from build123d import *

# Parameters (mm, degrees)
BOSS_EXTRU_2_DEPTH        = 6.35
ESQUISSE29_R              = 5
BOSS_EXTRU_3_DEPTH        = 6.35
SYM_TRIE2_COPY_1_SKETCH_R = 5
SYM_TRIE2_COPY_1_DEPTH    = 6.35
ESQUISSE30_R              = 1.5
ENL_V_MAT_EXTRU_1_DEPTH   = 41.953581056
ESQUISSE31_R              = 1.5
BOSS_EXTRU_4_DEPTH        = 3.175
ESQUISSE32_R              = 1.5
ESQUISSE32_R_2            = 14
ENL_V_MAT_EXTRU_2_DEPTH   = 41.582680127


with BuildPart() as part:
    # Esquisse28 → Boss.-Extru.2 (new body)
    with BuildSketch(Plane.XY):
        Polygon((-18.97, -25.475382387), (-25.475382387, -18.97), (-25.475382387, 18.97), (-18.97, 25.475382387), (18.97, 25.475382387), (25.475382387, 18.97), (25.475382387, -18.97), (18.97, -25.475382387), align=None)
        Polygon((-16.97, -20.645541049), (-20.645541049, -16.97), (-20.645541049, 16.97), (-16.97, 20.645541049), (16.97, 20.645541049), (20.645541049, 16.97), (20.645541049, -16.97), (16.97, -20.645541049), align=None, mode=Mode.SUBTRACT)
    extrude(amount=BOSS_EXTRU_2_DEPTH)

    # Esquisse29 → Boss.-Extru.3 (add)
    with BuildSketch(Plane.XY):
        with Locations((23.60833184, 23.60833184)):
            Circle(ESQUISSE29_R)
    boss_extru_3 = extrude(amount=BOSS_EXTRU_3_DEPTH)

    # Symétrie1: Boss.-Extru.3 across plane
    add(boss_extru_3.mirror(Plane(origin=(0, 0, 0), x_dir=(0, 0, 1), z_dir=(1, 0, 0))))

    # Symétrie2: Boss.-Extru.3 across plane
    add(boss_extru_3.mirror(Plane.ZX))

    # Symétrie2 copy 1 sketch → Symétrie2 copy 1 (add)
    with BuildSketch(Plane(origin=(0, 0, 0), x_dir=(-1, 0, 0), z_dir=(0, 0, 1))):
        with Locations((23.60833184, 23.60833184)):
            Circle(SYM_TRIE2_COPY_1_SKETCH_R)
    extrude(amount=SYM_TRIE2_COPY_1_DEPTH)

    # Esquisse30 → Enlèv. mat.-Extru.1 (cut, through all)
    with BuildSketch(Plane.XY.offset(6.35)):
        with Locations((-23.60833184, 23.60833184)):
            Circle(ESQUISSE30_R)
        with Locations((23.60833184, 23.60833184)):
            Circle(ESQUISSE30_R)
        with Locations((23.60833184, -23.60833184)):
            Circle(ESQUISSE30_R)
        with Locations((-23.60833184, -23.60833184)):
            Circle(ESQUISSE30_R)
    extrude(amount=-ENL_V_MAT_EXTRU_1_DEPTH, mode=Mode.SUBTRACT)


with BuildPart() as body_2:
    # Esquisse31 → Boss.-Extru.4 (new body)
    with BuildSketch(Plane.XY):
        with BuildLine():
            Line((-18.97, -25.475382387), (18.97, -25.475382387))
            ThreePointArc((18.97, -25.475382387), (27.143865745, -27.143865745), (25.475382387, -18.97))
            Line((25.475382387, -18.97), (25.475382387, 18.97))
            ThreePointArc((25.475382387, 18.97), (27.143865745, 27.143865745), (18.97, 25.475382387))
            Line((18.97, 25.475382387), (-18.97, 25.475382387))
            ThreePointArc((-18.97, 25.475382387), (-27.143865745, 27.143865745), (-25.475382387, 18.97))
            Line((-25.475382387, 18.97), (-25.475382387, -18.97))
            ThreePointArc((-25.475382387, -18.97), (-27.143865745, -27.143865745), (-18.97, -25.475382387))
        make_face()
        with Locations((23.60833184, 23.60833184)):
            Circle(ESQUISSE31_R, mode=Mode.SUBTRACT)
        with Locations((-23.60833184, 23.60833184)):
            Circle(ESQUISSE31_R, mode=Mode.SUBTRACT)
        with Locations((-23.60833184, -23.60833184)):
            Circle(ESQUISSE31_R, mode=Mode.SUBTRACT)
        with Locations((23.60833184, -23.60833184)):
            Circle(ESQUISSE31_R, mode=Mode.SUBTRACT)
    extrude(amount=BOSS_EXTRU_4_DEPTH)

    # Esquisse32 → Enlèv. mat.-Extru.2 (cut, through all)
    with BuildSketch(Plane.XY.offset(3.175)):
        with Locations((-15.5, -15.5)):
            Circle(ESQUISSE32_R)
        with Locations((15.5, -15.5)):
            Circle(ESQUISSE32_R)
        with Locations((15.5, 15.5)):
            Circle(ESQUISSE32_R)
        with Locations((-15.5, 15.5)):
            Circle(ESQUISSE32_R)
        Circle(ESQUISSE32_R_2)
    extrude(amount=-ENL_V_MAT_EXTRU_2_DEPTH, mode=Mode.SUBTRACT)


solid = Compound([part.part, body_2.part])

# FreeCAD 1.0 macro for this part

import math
import FreeCAD as App
import Part
import Sketcher


def add_polygon(sketch, points):
    """Adds a closed chain of lines whose ends are joined by coincident constraints."""
    first, n = sketch.GeometryCount, len(points)
    for a, b in zip(points, points[1:] + points[:1]):
        sketch.addGeometry(Part.LineSegment(App.Vector(*a, 0), App.Vector(*b, 0)), False)
    for i in range(n):
        sketch.addConstraint(Sketcher.Constraint("Coincident", first + i, 2, first + (i + 1) % n, 1))

doc = App.newDocument("Part")
body = doc.addObject("PartDesign::Body", "Body")

# Sketch on XY plane
sketch1 = body.newObject("Sketcher::SketchObject", "Sketch")
sketch1.AttachmentSupport = (doc.getObject("XY_Plane"), [""])
sketch1.MapMode = "FlatFace"
add_polygon(sketch1, [(-25.475382, -18.97), (-18.97, -25.475382), (18.97, -25.475382), (25.475382, -18.97), (25.475382, 18.97), (18.97, 25.475382), (-18.97, 25.475382), (-25.475382, 18.97)])  # lines 0-7
add_polygon(sketch1, [(-16.97, -20.645541), (-20.645541, -16.97), (-20.645541, 16.97), (-16.97, 20.645541), (16.97, 20.645541), (20.645541, 16.97), (20.645541, -16.97), (16.97, -20.645541)])  # lines 8-15
sketch1.addConstraint(Sketcher.Constraint("Horizontal", 1))
sketch1.addConstraint(Sketcher.Constraint("Vertical", 3))
sketch1.addConstraint(Sketcher.Constraint("Horizontal", 5))
sketch1.addConstraint(Sketcher.Constraint("Vertical", 7))
sketch1.addConstraint(Sketcher.Constraint("Vertical", 9))
sketch1.addConstraint(Sketcher.Constraint("Horizontal", 11))
sketch1.addConstraint(Sketcher.Constraint("Vertical", 13))
sketch1.addConstraint(Sketcher.Constraint("Horizontal", 15))
sketch1.addConstraint(Sketcher.Constraint("Symmetric", 0, 2, 4, 2, -1, 1))
sketch1.addConstraint(Sketcher.Constraint("Symmetric", 2, 2, 6, 2, -1, 1))
sketch1.addConstraint(Sketcher.Constraint("Symmetric", 8, 2, 12, 2, -1, 1))
sketch1.addConstraint(Sketcher.Constraint("Symmetric", 10, 2, 14, 2, -1, 1))
sketch1.addConstraint(Sketcher.Constraint("Perpendicular", 0, 2))
sketch1.addConstraint(Sketcher.Constraint("Perpendicular", 2, 4))
sketch1.addConstraint(Sketcher.Constraint("Perpendicular", 4, 6))
sketch1.addConstraint(Sketcher.Constraint("Perpendicular", 6, 8))
sketch1.addConstraint(Sketcher.Constraint("Perpendicular", 8, 10))
sketch1.addConstraint(Sketcher.Constraint("Perpendicular", 10, 12))
sketch1.addConstraint(Sketcher.Constraint("Perpendicular", 12, 14))
sketch1.addConstraint(Sketcher.Constraint("Horizontal", 3, 2, 6, 2))
sketch1.addConstraint(Sketcher.Constraint("Horizontal", 9, 2, 12, 2))
sketch1.addConstraint(Sketcher.Constraint("Vertical", 1, 2, 4, 2))
sketch1.addConstraint(Sketcher.Constraint("Equal", 5, 3))
sketch1.addConstraint(Sketcher.Constraint("Equal", 15, 9))
sketch1.addConstraint(Sketcher.Constraint("DistanceY", 7, 2, 8, 2, 2.0))
sketch1.addConstraint(Sketcher.Constraint("Distance", 0, 9.2))
sketch1.addConstraint(Sketcher.Constraint("DistanceX", 1, 1, 1, 2, 37.94))
sketch1.addConstraint(Sketcher.Constraint("Distance", 8, 5.198))
pad1 = body.newObject("PartDesign::Pad", "Pad")
pad1.Profile = sketch1
pad1.Length = 6.35

# Sketch on XY plane
sketch2 = body.newObject("Sketcher::SketchObject", "Sketch001")
sketch2.AttachmentSupport = (doc.getObject("XY_Plane"), [""])
sketch2.MapMode = "FlatFace"
sketch2.addGeometry(Part.Circle(App.Vector(23.608332, 23.608332, 0), App.Vector(0, 0, 1), 5), False)
sketch2.addConstraint(Sketcher.Constraint("Diameter", 0, 10.0))
sketch2.addConstraint(Sketcher.Constraint("DistanceX", -1, 1, 0, 3, 23.608332))
sketch2.addConstraint(Sketcher.Constraint("DistanceY", -1, 1, 0, 3, 23.608332))
pad2 = body.newObject("PartDesign::Pad", "Pad001")
pad2.Profile = sketch2
pad2.Length = 6.35
doc.recompute()

mirrored = body.newObject("PartDesign::Mirrored", "Mirrored")
mirrored.Originals = [pad2]
mirrored.MirrorPlane = (doc.getObject("YZ_Plane"), [""])
body.Tip = mirrored
doc.recompute()

mirrored2 = body.newObject("PartDesign::Mirrored", "Mirrored001")
mirrored2.Originals = [pad2]
mirrored2.MirrorPlane = (doc.getObject("XZ_Plane"), [""])
body.Tip = mirrored2

# Sketch on XY plane
sketch3 = body.newObject("Sketcher::SketchObject", "Sketch002")
sketch3.AttachmentSupport = (doc.getObject("XY_Plane"), [""])
sketch3.MapMode = "FlatFace"
sketch3.addGeometry(Part.Circle(App.Vector(-23.608332, -23.608332, 0), App.Vector(0, 0, 1), 5), False)
sketch3.addConstraint(Sketcher.Constraint("Diameter", 0, 10.0))
sketch3.addConstraint(Sketcher.Constraint("DistanceX", 0, 3, -1, 1, 23.608332))
sketch3.addConstraint(Sketcher.Constraint("DistanceY", 0, 3, -1, 1, 23.608332))
pad3 = body.newObject("PartDesign::Pad", "Pad002")
pad3.Profile = sketch3
pad3.Length = 6.35

# Sketch on XY plane
sketch4 = body.newObject("Sketcher::SketchObject", "Sketch003")
sketch4.AttachmentSupport = (doc.getObject("XY_Plane"), [""])
sketch4.MapMode = "FlatFace"
sketch4.AttachmentOffset = App.Placement(App.Vector(0, 0, 6.35), App.Rotation())
sketch4.addGeometry(Part.Circle(App.Vector(-23.608332, 23.608332, 0), App.Vector(0, 0, 1), 1.5), False)
sketch4.addGeometry(Part.Circle(App.Vector(23.608332, 23.608332, 0), App.Vector(0, 0, 1), 1.5), False)
sketch4.addGeometry(Part.Circle(App.Vector(23.608332, -23.608332, 0), App.Vector(0, 0, 1), 1.5), False)
sketch4.addGeometry(Part.Circle(App.Vector(-23.608332, -23.608332, 0), App.Vector(0, 0, 1), 1.5), False)
sketch4.addConstraint(Sketcher.Constraint("Equal", 0, 1))
sketch4.addConstraint(Sketcher.Constraint("Equal", 1, 2))
sketch4.addConstraint(Sketcher.Constraint("Equal", 2, 3))
sketch4.addConstraint(Sketcher.Constraint("Symmetric", 0, 3, 2, 3, -1, 1))
sketch4.addConstraint(Sketcher.Constraint("Symmetric", 1, 3, 3, 3, -1, 1))
sketch4.addConstraint(Sketcher.Constraint("Symmetric", 0, 3, 1, 3, -2))
sketch4.addConstraint(Sketcher.Constraint("Diameter", 0, 3.0))
sketch4.addConstraint(Sketcher.Constraint("DistanceX", 0, 3, -1, 1, 23.608332))
sketch4.addConstraint(Sketcher.Constraint("DistanceY", -1, 1, 0, 3, 23.608332))
pocket1 = body.newObject("PartDesign::Pocket", "Pocket")
pocket1.Profile = sketch4
pocket1.Type = "ThroughAll"
body2 = doc.addObject("PartDesign::Body", "Body001")

# Sketch on XY plane
sketch5 = body2.newObject("Sketcher::SketchObject", "Sketch004")
sketch5.AttachmentSupport = (doc.getObject("XY_Plane001"), [""])
sketch5.MapMode = "FlatFace"
sketch5.addGeometry(Part.LineSegment(App.Vector(-18.97, -25.475382, 0), App.Vector(18.97, -25.475382, 0)), False)
sketch5.addGeometry(Part.ArcOfCircle(Part.Circle(App.Vector(23.608332, -23.608332, 0), App.Vector(0, 0, 1), 5), math.radians(-158.073918), math.radians(68.073918)), False)
sketch5.addGeometry(Part.LineSegment(App.Vector(25.475382, -18.97, 0), App.Vector(25.475382, 18.97, 0)), False)
sketch5.addGeometry(Part.ArcOfCircle(Part.Circle(App.Vector(23.608332, 23.608332, 0), App.Vector(0, 0, 1), 5), math.radians(-68.073918), math.radians(158.073918)), False)
sketch5.addGeometry(Part.LineSegment(App.Vector(18.97, 25.475382, 0), App.Vector(-18.97, 25.475382, 0)), False)
sketch5.addGeometry(Part.ArcOfCircle(Part.Circle(App.Vector(-23.608332, 23.608332, 0), App.Vector(0, 0, 1), 5), math.radians(21.926082), math.radians(248.073918)), False)
sketch5.addGeometry(Part.LineSegment(App.Vector(-25.475382, 18.97, 0), App.Vector(-25.475382, -18.97, 0)), False)
sketch5.addGeometry(Part.ArcOfCircle(Part.Circle(App.Vector(-23.608332, -23.608332, 0), App.Vector(0, 0, 1), 5), math.radians(111.926082), math.radians(338.073918)), False)
sketch5.addGeometry(Part.Circle(App.Vector(-23.608332, -23.608332, 0), App.Vector(0, 0, 1), 1.5), False)
sketch5.addGeometry(Part.Circle(App.Vector(23.608332, -23.608332, 0), App.Vector(0, 0, 1), 1.5), False)
sketch5.addGeometry(Part.Circle(App.Vector(-23.608332, 23.608332, 0), App.Vector(0, 0, 1), 1.5), False)
sketch5.addGeometry(Part.Circle(App.Vector(23.608332, 23.608332, 0), App.Vector(0, 0, 1), 1.5), False)
sketch5.addConstraint(Sketcher.Constraint("Coincident", 0, 2, 1, 1))
sketch5.addConstraint(Sketcher.Constraint("Coincident", 1, 2, 2, 1))
sketch5.addConstraint(Sketcher.Constraint("Coincident", 2, 2, 3, 1))
sketch5.addConstraint(Sketcher.Constraint("Coincident", 3, 2, 4, 1))
sketch5.addConstraint(Sketcher.Constraint("Coincident", 4, 2, 5, 1))
sketch5.addConstraint(Sketcher.Constraint("Coincident", 5, 2, 6, 1))
sketch5.addConstraint(Sketcher.Constraint("Coincident", 6, 2, 7, 1))
sketch5.addConstraint(Sketcher.Constraint("Coincident", 7, 2, 0, 1))
sketch5.addConstraint(Sketcher.Constraint("Horizontal", 0))
sketch5.addConstraint(Sketcher.Constraint("Vertical", 2))
sketch5.addConstraint(Sketcher.Constraint("Horizontal", 4))
sketch5.addConstraint(Sketcher.Constraint("Vertical", 6))
sketch5.addConstraint(Sketcher.Constraint("Coincident", 8, 3, 7, 3))
sketch5.addConstraint(Sketcher.Constraint("Coincident", 9, 3, 1, 3))
sketch5.addConstraint(Sketcher.Constraint("Coincident", 10, 3, 5, 3))
sketch5.addConstraint(Sketcher.Constraint("Coincident", 11, 3, 3, 3))
sketch5.addConstraint(Sketcher.Constraint("Equal", 1, 3))
sketch5.addConstraint(Sketcher.Constraint("Equal", 3, 5))
sketch5.addConstraint(Sketcher.Constraint("Equal", 5, 7))
sketch5.addConstraint(Sketcher.Constraint("Equal", 8, 9))
sketch5.addConstraint(Sketcher.Constraint("Equal", 9, 10))
sketch5.addConstraint(Sketcher.Constraint("Equal", 10, 11))
sketch5.addConstraint(Sketcher.Constraint("Symmetric", 1, 3, 5, 3, -1, 1))
sketch5.addConstraint(Sketcher.Constraint("Symmetric", 3, 3, 7, 3, -1, 1))
sketch5.addConstraint(Sketcher.Constraint("Symmetric", 3, 3, 5, 3, -2))
sketch5.addConstraint(Sketcher.Constraint("Horizontal", 2, 2, 5, 2))
sketch5.addConstraint(Sketcher.Constraint("Vertical", 0, 2, 3, 2))
sketch5.addConstraint(Sketcher.Constraint("Equal", 4, 2))
sketch5.addConstraint(Sketcher.Constraint("Diameter", 8, 3.0))
sketch5.addConstraint(Sketcher.Constraint("Radius", 1, 5.0))
sketch5.addConstraint(Sketcher.Constraint("DistanceX", 0, 1, 0, 2, 37.94))
sketch5.addConstraint(Sketcher.Constraint("DistanceX", -1, 1, 1, 3, 23.608332))
sketch5.addConstraint(Sketcher.Constraint("DistanceY", 1, 3, -1, 1, 23.608332))
pad4 = body2.newObject("PartDesign::Pad", "Pad003")
pad4.Profile = sketch5
pad4.Length = 3.175

# Sketch on XY plane
sketch6 = body2.newObject("Sketcher::SketchObject", "Sketch005")
sketch6.AttachmentSupport = (doc.getObject("XY_Plane001"), [""])
sketch6.MapMode = "FlatFace"
sketch6.AttachmentOffset = App.Placement(App.Vector(0, 0, 3.175), App.Rotation())
sketch6.addGeometry(Part.Circle(App.Vector(-15.5, -15.5, 0), App.Vector(0, 0, 1), 1.5), False)
sketch6.addGeometry(Part.Circle(App.Vector(15.5, -15.5, 0), App.Vector(0, 0, 1), 1.5), False)
sketch6.addGeometry(Part.Circle(App.Vector(15.5, 15.5, 0), App.Vector(0, 0, 1), 1.5), False)
sketch6.addGeometry(Part.Circle(App.Vector(-15.5, 15.5, 0), App.Vector(0, 0, 1), 1.5), False)
sketch6.addGeometry(Part.Circle(App.Vector(0, 0, 0), App.Vector(0, 0, 1), 14), False)
sketch6.addConstraint(Sketcher.Constraint("Coincident", 4, 3, -1, 1))
sketch6.addConstraint(Sketcher.Constraint("Equal", 0, 1))
sketch6.addConstraint(Sketcher.Constraint("Equal", 1, 2))
sketch6.addConstraint(Sketcher.Constraint("Equal", 2, 3))
sketch6.addConstraint(Sketcher.Constraint("Symmetric", 0, 3, 2, 3, -1, 1))
sketch6.addConstraint(Sketcher.Constraint("Symmetric", 1, 3, 3, 3, -1, 1))
sketch6.addConstraint(Sketcher.Constraint("Symmetric", 0, 3, 1, 3, -2))
sketch6.addConstraint(Sketcher.Constraint("Diameter", 0, 3.0))
sketch6.addConstraint(Sketcher.Constraint("Diameter", 4, 28.0))
sketch6.addConstraint(Sketcher.Constraint("DistanceX", 0, 3, 1, 3, 31.0))
sketch6.addConstraint(Sketcher.Constraint("DistanceY", 1, 3, 2, 3, 31.0))
pocket2 = body2.newObject("PartDesign::Pocket", "Pocket001")
pocket2.Profile = sketch6
pocket2.Type = "ThroughAll"

doc.recompute()
